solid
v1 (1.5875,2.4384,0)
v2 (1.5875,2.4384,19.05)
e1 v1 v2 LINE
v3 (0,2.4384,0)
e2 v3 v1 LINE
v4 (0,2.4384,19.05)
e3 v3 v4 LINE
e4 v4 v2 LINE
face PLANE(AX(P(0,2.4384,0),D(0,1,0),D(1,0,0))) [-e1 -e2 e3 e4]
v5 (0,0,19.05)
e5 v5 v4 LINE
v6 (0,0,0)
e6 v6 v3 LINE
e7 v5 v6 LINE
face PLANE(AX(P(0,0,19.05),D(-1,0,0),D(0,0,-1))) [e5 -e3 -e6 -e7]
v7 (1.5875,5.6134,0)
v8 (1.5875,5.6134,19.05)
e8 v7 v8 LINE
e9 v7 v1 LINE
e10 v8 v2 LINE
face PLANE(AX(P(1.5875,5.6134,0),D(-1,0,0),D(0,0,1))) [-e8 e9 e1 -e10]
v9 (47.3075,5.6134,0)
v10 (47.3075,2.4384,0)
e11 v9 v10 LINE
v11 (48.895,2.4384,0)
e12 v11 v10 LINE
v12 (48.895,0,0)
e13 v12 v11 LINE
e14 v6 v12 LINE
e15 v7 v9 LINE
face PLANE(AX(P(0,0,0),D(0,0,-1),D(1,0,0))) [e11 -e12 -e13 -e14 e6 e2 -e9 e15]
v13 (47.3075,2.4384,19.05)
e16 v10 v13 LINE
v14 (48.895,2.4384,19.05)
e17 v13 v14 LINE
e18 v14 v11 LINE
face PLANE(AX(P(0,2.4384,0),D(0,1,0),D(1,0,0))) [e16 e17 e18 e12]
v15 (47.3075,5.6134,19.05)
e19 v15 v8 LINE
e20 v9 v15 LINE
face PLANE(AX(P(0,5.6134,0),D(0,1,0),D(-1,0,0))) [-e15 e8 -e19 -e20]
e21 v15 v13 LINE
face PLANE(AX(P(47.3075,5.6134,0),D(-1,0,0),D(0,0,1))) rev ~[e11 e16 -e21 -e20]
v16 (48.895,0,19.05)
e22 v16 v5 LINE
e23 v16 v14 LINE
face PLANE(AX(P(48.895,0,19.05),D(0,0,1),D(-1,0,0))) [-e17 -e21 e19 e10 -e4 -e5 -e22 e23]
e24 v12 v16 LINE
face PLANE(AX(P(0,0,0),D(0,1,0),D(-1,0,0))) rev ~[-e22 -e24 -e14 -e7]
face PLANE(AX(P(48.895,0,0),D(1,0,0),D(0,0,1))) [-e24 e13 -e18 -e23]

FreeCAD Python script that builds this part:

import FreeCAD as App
import Part
import Sketcher
from FreeCAD import Vector
Q = App.Units.Quantity

doc = App.newDocument("Part")
body = doc.addObject("PartDesign::Body", "Body")

sketch1 = body.newObject("Sketcher::SketchObject", "Sketch")
sketch1.AttachmentSupport = (doc.getObject("XZ_Plane"), [""])
sketch1.MapMode = "FlatFace"
sketch1.addGeometry(Part.LineSegment(Vector(49, 0, 0), Vector(0, 0, 0)), False)
sketch1.addGeometry(Part.LineSegment(Vector(0, 0, 0), Vector(0, 19, 0)), False)
sketch1.addGeometry(Part.LineSegment(Vector(0, 19, 0), Vector(49, 19, 0)), False)
sketch1.addGeometry(Part.LineSegment(Vector(49, 19, 0), Vector(49, 0, 0)), False)
sketch1.addConstraint(Sketcher.Constraint("Coincident", 0, 2, 1, 1))
sketch1.addConstraint(Sketcher.Constraint("Coincident", 1, 2, 2, 1))
sketch1.addConstraint(Sketcher.Constraint("Coincident", 2, 2, 3, 1))
sketch1.addConstraint(Sketcher.Constraint("Coincident", 3, 2, 0, 1))
sketch1.addConstraint(Sketcher.Constraint("Horizontal", 0))
sketch1.addConstraint(Sketcher.Constraint("Vertical", 1))
sketch1.addConstraint(Sketcher.Constraint("Horizontal", 2))
sketch1.addConstraint(Sketcher.Constraint("Vertical", 3))
sketch1.addConstraint(Sketcher.Constraint("Coincident", 0, 2, -1, 1))
sketch1.addConstraint(Sketcher.Constraint("DistanceY", 1, 1, 1, 2, Q("0.75 in")))
sketch1.addConstraint(Sketcher.Constraint("DistanceX", 0, 2, 0, 1, Q("1.925 in")))
pad1 = body.newObject("PartDesign::Pad", "Pad")
pad1.Profile = sketch1
pad1.Length = Q("0.221 in")
pad1.Reversed = True

sketch2 = body.newObject("Sketcher::SketchObject", "Sketch001")
sketch2.AttachmentSupport = (doc.getObject("XZ_Plane"), [""])
sketch2.MapMode = "FlatFace"
sketch2.AttachmentOffset = App.Placement(Vector(0, 0, -0.221 * 25.4), App.Rotation())
sketch2.addGeometry(Part.LineSegment(Vector(1.6, 0, 0), Vector(0, 0, 0)), False)
sketch2.addGeometry(Part.LineSegment(Vector(0, 0, 0), Vector(0, 19.1, 0)), False)
sketch2.addGeometry(Part.LineSegment(Vector(0, 19.1, 0), Vector(1.6, 19.1, 0)), False)
sketch2.addGeometry(Part.LineSegment(Vector(1.6, 19.1, 0), Vector(1.6, 0, 0)), False)
sketch2.addGeometry(Part.LineSegment(Vector(47.3, 0, 0), Vector(47.3, 19.1, 0)), False)
sketch2.addGeometry(Part.LineSegment(Vector(47.3, 19.1, 0), Vector(48.9, 19.1, 0)), False)
sketch2.addGeometry(Part.LineSegment(Vector(48.9, 19.1, 0), Vector(48.9, 0, 0)), False)
sketch2.addGeometry(Part.LineSegment(Vector(48.9, 0, 0), Vector(47.3, 0, 0)), False)
sketch2.addConstraint(Sketcher.Constraint("Coincident", 0, 2, 1, 1))
sketch2.addConstraint(Sketcher.Constraint("Coincident", 1, 2, 2, 1))
sketch2.addConstraint(Sketcher.Constraint("Coincident", 2, 2, 3, 1))
sketch2.addConstraint(Sketcher.Constraint("Coincident", 3, 2, 0, 1))
sketch2.addConstraint(Sketcher.Constraint("Coincident", 4, 2, 5, 1))
sketch2.addConstraint(Sketcher.Constraint("Coincident", 5, 2, 6, 1))
sketch2.addConstraint(Sketcher.Constraint("Coincident", 6, 2, 7, 1))
sketch2.addConstraint(Sketcher.Constraint("Coincident", 7, 2, 4, 1))
sketch2.addConstraint(Sketcher.Constraint("Horizontal", 0))
sketch2.addConstraint(Sketcher.Constraint("Vertical", 1))
sketch2.addConstraint(Sketcher.Constraint("Horizontal", 2))
sketch2.addConstraint(Sketcher.Constraint("Vertical", 3))
sketch2.addConstraint(Sketcher.Constraint("Vertical", 4))
sketch2.addConstraint(Sketcher.Constraint("Horizontal", 5))
sketch2.addConstraint(Sketcher.Constraint("Vertical", 6))
sketch2.addConstraint(Sketcher.Constraint("Horizontal", 7))
sketch2.addConstraint(Sketcher.Constraint("Coincident", 0, 2, -1, 1))
sketch2.addConstraint(Sketcher.Constraint("PointOnObject", 6, 2, -1))
sketch2.addConstraint(Sketcher.Constraint("Horizontal", 2, 2, 4, 2))
sketch2.addConstraint(Sketcher.Constraint("Equal", 2, 5))
sketch2.addConstraint(Sketcher.Constraint("DistanceX", 0, 2, 0, 1, Q("0.0625 in")))
sketch2.addConstraint(Sketcher.Constraint("DistanceY", 1, 1, 1, 2, Q("0.75 in")))
sketch2.addConstraint(Sketcher.Constraint("DistanceX", 2, 2, 4, 2, Q("1.8 in")))
pocket1 = body.newObject("PartDesign::Pocket", "Pocket")
pocket1.Profile = sketch2
pocket1.Length = Q("0.125 in")
pocket1.Reversed = True

doc.recompute()
